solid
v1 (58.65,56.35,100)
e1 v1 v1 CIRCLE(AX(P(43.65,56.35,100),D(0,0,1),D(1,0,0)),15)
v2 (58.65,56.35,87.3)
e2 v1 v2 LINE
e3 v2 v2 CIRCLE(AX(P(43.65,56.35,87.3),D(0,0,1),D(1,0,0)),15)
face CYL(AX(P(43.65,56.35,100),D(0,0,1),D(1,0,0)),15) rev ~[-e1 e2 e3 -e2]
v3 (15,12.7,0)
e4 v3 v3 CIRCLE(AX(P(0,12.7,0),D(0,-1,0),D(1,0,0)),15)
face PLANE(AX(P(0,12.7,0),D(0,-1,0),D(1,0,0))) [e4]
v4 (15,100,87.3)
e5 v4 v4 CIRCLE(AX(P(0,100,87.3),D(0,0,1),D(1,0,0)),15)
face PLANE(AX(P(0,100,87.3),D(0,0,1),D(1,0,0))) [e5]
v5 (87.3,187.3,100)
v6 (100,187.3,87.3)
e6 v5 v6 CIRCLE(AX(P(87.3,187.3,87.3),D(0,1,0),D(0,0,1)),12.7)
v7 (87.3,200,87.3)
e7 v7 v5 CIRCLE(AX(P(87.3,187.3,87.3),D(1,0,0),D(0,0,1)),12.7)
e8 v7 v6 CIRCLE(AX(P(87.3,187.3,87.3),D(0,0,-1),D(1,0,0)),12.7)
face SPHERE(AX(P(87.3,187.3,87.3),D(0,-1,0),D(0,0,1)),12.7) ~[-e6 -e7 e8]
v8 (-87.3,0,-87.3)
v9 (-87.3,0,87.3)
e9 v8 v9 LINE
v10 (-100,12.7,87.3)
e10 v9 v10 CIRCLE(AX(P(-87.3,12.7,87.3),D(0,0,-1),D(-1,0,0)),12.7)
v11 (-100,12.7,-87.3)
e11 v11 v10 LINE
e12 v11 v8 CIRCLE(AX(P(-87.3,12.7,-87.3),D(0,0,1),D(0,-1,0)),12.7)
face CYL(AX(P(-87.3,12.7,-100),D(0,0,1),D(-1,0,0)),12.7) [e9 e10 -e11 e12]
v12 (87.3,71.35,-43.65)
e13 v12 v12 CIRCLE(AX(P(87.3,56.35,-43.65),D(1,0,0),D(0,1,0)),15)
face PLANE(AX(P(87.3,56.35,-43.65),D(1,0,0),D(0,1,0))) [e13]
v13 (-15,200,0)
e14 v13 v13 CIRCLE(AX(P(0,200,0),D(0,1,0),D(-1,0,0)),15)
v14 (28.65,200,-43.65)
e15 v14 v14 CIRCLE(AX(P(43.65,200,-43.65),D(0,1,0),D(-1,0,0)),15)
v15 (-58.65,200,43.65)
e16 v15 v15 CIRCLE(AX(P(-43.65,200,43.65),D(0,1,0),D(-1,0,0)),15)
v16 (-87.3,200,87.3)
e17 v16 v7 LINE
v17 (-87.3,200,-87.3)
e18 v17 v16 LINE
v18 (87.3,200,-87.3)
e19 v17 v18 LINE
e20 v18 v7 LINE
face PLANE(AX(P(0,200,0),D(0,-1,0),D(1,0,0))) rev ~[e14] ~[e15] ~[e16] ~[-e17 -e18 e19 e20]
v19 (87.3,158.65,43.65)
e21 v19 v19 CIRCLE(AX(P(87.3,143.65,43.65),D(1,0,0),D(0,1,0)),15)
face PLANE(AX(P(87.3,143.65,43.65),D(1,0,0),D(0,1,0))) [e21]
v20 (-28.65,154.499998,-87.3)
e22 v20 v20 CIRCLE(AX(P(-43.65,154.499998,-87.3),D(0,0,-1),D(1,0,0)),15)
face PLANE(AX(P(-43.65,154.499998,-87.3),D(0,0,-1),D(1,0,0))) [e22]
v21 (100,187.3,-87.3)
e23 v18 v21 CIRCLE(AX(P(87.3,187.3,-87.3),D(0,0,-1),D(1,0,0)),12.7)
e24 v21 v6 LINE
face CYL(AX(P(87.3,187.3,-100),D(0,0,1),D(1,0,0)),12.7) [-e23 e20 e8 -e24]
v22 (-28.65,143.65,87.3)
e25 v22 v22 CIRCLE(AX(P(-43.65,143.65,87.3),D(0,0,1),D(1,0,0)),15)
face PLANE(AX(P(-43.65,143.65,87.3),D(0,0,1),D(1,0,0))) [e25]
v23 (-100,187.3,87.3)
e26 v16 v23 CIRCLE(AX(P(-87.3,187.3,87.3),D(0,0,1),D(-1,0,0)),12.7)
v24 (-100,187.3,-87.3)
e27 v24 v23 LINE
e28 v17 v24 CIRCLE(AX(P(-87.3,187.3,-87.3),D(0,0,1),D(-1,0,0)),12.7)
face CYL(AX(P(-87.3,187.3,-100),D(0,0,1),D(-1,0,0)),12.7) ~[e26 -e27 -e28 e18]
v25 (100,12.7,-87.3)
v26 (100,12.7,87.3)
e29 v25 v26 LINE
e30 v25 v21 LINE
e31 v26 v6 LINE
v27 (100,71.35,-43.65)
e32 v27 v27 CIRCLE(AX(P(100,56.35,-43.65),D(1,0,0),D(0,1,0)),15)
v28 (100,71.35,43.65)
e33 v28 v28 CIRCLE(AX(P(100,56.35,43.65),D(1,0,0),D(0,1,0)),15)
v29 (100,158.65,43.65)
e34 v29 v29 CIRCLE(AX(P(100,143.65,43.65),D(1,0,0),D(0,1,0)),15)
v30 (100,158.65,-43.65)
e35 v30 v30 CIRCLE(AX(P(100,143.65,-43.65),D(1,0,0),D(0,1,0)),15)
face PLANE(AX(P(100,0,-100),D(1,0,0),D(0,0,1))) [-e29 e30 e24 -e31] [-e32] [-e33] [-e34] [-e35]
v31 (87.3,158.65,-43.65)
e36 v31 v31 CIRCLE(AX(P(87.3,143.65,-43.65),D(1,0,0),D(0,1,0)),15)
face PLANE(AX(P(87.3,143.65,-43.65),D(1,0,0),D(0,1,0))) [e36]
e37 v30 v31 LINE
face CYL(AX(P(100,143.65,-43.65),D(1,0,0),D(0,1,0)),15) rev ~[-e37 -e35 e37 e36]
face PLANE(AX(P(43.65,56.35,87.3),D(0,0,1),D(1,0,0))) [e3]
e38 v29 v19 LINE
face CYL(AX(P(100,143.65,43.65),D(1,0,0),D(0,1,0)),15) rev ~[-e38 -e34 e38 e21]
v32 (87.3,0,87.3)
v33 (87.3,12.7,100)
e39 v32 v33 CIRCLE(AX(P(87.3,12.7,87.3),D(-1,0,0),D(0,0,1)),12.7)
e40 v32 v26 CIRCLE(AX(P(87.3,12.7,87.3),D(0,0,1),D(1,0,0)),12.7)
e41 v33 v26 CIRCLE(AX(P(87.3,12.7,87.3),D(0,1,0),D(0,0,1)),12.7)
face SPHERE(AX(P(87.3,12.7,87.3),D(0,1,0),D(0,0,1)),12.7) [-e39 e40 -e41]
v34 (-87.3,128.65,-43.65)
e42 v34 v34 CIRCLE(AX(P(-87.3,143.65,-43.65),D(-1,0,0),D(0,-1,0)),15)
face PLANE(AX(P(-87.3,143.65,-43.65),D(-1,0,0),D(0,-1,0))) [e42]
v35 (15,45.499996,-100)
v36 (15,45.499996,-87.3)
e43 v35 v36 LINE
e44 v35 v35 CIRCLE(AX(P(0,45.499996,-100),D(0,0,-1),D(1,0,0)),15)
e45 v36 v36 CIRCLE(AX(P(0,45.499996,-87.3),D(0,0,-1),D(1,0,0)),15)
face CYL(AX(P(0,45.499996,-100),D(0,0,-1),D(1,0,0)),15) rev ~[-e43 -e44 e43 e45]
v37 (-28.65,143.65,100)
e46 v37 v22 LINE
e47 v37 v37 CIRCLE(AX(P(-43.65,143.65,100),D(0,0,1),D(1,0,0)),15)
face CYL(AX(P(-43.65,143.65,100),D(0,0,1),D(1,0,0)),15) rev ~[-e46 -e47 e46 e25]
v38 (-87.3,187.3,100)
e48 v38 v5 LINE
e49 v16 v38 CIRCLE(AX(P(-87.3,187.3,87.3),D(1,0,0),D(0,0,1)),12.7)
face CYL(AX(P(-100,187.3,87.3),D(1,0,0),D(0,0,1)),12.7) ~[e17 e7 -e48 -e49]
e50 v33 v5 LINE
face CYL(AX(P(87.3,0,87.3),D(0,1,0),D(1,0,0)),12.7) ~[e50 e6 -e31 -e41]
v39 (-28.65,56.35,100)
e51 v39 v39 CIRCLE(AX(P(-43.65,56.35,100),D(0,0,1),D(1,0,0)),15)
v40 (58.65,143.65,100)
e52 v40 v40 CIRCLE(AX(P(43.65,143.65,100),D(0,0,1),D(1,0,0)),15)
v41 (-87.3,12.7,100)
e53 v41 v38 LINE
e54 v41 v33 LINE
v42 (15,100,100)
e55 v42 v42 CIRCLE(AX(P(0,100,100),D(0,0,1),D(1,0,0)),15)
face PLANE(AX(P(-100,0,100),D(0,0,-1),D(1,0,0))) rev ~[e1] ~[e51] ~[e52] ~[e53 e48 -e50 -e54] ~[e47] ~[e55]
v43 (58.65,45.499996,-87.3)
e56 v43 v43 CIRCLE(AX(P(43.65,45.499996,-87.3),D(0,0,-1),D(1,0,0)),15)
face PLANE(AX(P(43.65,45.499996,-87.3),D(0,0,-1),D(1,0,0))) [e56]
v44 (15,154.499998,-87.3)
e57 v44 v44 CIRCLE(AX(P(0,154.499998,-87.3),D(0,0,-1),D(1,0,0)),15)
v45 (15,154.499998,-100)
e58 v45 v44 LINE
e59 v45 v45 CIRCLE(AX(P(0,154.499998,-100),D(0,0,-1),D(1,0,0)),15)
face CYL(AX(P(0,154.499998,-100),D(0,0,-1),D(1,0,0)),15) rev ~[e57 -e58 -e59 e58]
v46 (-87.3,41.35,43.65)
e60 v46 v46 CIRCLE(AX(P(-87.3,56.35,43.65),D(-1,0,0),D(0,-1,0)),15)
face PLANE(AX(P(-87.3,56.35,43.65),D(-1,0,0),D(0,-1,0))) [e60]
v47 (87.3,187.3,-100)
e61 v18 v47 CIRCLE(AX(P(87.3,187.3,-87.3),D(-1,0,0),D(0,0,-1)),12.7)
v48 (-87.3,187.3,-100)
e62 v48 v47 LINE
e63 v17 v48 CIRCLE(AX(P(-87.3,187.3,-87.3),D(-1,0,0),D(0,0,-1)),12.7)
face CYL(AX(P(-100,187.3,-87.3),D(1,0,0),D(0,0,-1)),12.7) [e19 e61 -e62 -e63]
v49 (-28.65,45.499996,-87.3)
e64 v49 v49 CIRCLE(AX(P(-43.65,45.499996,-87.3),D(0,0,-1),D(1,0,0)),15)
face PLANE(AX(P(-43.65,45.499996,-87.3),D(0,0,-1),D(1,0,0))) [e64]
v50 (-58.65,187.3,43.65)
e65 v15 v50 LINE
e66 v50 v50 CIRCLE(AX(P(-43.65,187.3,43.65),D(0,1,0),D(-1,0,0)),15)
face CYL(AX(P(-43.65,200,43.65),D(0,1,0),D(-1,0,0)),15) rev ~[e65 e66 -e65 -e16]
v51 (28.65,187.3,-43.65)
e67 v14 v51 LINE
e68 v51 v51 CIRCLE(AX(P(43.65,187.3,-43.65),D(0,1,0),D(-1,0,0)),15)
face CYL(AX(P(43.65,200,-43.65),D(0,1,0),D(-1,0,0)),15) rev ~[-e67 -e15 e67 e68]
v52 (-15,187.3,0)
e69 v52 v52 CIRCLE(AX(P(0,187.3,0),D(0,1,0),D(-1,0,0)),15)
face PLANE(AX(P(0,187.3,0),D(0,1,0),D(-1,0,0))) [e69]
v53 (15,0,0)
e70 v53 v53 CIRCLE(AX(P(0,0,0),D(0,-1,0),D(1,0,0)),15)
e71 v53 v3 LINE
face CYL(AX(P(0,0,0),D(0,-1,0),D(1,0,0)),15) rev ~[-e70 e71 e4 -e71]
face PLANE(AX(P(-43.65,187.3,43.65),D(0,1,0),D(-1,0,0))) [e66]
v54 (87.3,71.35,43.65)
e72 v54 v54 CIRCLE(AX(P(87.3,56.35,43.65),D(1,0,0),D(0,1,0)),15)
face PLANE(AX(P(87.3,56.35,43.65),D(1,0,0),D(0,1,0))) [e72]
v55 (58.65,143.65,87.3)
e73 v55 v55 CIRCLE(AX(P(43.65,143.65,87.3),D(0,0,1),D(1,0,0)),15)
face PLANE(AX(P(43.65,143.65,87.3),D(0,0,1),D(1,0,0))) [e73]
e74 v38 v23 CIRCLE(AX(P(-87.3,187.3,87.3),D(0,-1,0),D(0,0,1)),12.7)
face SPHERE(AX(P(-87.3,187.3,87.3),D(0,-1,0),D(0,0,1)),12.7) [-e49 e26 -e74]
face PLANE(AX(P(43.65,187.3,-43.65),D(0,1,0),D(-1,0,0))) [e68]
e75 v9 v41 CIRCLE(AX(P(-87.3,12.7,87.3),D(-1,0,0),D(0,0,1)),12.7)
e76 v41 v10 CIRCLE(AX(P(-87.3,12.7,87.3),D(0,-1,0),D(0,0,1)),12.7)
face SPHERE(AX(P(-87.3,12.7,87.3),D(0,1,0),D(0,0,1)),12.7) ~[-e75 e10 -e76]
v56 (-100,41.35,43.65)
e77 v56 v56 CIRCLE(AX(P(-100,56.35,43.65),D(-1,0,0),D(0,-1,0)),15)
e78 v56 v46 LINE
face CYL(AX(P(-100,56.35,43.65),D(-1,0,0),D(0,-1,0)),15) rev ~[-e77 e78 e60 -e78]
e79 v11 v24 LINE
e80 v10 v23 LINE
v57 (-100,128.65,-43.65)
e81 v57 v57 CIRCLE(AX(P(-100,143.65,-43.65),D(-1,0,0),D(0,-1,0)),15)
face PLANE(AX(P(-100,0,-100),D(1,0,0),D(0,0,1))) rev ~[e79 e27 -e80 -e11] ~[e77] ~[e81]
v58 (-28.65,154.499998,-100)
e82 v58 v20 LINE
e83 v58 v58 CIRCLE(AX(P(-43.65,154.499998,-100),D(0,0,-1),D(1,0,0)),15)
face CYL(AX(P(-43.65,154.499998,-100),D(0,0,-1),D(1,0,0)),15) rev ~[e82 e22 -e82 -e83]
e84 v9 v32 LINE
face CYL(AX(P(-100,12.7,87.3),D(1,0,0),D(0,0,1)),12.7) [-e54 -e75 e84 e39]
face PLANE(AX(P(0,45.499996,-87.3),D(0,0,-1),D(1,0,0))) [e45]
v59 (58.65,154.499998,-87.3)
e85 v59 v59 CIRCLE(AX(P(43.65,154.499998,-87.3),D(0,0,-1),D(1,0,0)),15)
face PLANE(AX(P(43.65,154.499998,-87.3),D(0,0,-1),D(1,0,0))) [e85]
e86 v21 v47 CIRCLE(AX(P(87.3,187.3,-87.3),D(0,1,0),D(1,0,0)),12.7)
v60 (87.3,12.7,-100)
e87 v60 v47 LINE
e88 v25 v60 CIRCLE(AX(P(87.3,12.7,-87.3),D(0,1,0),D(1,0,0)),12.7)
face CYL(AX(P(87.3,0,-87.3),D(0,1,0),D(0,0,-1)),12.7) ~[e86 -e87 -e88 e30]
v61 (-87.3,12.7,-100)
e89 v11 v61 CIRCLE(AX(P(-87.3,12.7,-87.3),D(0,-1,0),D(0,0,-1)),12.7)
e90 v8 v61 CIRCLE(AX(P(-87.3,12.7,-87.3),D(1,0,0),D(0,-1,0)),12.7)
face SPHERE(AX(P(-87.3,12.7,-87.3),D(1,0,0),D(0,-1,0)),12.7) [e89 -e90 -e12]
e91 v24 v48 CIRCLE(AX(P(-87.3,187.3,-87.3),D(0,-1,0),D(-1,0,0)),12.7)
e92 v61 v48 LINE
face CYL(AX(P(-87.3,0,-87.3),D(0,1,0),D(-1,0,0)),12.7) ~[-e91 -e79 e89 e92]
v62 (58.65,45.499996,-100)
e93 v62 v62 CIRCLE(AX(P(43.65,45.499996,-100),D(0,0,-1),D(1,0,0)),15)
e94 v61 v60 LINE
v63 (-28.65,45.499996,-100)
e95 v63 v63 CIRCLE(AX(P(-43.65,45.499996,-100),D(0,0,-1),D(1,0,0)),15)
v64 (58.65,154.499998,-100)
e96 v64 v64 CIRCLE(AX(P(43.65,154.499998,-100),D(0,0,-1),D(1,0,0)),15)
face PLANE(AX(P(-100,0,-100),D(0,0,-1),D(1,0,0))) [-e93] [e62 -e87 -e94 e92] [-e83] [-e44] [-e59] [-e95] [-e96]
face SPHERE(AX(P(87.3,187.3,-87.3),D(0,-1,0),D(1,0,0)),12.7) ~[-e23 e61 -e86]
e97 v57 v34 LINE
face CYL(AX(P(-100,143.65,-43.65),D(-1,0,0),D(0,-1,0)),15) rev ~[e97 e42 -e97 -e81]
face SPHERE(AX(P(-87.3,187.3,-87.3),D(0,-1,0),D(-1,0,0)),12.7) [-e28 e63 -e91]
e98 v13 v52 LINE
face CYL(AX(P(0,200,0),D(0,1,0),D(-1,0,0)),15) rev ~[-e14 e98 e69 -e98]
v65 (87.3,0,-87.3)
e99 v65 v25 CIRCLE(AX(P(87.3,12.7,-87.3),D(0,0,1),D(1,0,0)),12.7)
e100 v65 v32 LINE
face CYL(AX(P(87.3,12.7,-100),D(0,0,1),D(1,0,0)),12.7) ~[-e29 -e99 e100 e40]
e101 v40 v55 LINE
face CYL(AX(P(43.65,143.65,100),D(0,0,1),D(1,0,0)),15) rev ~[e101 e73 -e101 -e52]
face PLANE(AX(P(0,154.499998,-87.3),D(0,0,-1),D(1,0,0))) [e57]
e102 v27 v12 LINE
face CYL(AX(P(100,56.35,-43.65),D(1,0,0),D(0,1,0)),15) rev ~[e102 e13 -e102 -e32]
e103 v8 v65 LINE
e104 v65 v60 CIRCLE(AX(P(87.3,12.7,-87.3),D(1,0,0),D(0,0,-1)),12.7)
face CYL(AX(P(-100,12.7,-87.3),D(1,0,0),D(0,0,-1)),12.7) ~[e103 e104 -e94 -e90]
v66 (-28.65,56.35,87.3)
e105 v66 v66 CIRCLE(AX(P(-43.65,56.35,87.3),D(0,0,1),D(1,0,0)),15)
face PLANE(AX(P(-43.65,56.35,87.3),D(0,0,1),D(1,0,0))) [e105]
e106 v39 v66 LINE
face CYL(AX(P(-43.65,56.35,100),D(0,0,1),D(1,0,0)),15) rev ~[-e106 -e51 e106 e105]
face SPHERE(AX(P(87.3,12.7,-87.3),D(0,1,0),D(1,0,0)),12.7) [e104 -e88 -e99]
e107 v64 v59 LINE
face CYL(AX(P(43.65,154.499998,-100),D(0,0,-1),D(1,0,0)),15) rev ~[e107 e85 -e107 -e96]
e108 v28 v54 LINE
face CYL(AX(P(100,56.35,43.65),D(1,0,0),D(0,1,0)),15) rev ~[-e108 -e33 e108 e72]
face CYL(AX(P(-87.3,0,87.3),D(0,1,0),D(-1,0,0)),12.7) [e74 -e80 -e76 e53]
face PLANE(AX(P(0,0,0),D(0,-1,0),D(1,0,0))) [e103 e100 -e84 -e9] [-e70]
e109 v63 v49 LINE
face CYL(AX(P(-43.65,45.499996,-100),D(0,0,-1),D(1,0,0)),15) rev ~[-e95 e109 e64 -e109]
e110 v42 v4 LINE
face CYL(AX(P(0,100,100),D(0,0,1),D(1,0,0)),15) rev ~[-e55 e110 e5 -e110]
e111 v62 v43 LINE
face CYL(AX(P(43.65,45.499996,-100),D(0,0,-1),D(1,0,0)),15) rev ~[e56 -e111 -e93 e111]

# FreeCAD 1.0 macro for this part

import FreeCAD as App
import Part
import Sketcher
Q = App.Units.Quantity

doc = App.newDocument("Part")
body = doc.addObject("PartDesign::Body", "Body")

sketch1 = body.newObject("Sketcher::SketchObject", "Sketch")
sketch1.AttachmentSupport = (doc.getObject("XZ_Plane"), [""])
sketch1.MapMode = "FlatFace"
sketch1.addGeometry([
    Part.LineSegment(App.Vector(-100, 100, 0), App.Vector(-100, -100, 0)),
    Part.LineSegment(App.Vector(-100, -100, 0), App.Vector(100, -100, 0)),
    Part.LineSegment(App.Vector(100, -100, 0), App.Vector(100, 100, 0)),
    Part.LineSegment(App.Vector(100, 100, 0), App.Vector(-100, 100, 0)),
], False)
sketch1.addConstraint([
    Sketcher.Constraint("Coincident", 0, 2, 1, 1),
    Sketcher.Constraint("Coincident", 1, 2, 2, 1),
    Sketcher.Constraint("Coincident", 2, 2, 3, 1),
    Sketcher.Constraint("Coincident", 3, 2, 0, 1),
    Sketcher.Constraint("Vertical", 0),
    Sketcher.Constraint("Horizontal", 1),
    Sketcher.Constraint("Vertical", 2),
    Sketcher.Constraint("Horizontal", 3),
    Sketcher.Constraint("Symmetric", 0, 2, 2, 2, -1, 1),
    Sketcher.Constraint("Equal", 3, 0),
    Sketcher.Constraint("DistanceX", 1, 1, 1, 2, Q("200 mm")),
])
pad1 = body.newObject("PartDesign::Pad", "Pad")
pad1.Profile = sketch1
pad1.Length = 200
pad1.Reversed = True
doc.recompute()

fillet = body.newObject("PartDesign::Fillet", "Fillet")
fillet.Base = (pad1, ["Edge1"])
fillet.UseAllEdges = True
fillet.Radius = 12.7

sketch2 = body.newObject("Sketcher::SketchObject", "Sketch001")
sketch2.AttachmentSupport = (doc.getObject("XZ_Plane"), [""])
sketch2.MapMode = "FlatFace"
sketch2.addGeometry(Part.Circle(App.Vector(0, 0, 0), App.Vector(0, 0, 1), 15), False)
sketch2.addConstraint([
    Sketcher.Constraint("Coincident", 0, 3, -1, 1),
    Sketcher.Constraint("Diameter", 0, Q("30 mm")),
])
pocket1 = body.newObject("PartDesign::Pocket", "Pocket")
pocket1.Profile = sketch2
pocket1.Length = 12.7

sketch3 = body.newObject("Sketcher::SketchObject", "Sketch002")
sketch3.AttachmentSupport = (doc.getObject("YZ_Plane"), [""])
sketch3.MapMode = "FlatFace"
sketch3.AttachmentOffset = App.Placement(App.Vector(0, 0, 100), App.Rotation())
sketch3.addGeometry([
    Part.Circle(App.Vector(56, -44, 0), App.Vector(0, 0, 1), 15),
    Part.Circle(App.Vector(144, -44, 0), App.Vector(0, 0, 1), 15),
    Part.Circle(App.Vector(56, 44, 0), App.Vector(0, 0, 1), 15),
    Part.Circle(App.Vector(144, 44, 0), App.Vector(0, 0, 1), 15),
], False)
sketch3.addConstraint([
    Sketcher.Constraint("Equal", 0, 1),
    Sketcher.Constraint("Equal", 1, 2),
    Sketcher.Constraint("Equal", 2, 3),
    Sketcher.Constraint("Symmetric", 0, 3, 2, 3, -1),
    Sketcher.Constraint("Symmetric", 1, 3, 3, 3, -1),
    Sketcher.Constraint("Horizontal", 0, 3, 1, 3),
    Sketcher.Constraint("Diameter", 0, Q("30 mm")),
    Sketcher.Constraint("DistanceX", 0, 3, 1, 3, Q("87.3 mm")),
    Sketcher.Constraint("DistanceY", 0, 3, 2, 3, Q("87.3 mm")),
    Sketcher.Constraint("DistanceX", -1, 1, 0, 3, Q("56.35 mm")),
])
pocket2 = body.newObject("PartDesign::Pocket", "Pocket001")
pocket2.Profile = sketch3
pocket2.Length = 12.7

sketch4 = body.newObject("Sketcher::SketchObject", "Sketch003")
sketch4.AttachmentSupport = (doc.getObject("XY_Plane"), [""])
sketch4.MapMode = "FlatFace"
sketch4.AttachmentOffset = App.Placement(App.Vector(0, 0, -100), App.Rotation())
sketch4.addGeometry([
    Part.Circle(App.Vector(-44, 45, 0), App.Vector(0, 0, 1), 15),
    Part.Circle(App.Vector(0, 45, 0), App.Vector(0, 0, 1), 15),
    Part.Circle(App.Vector(44, 45, 0), App.Vector(0, 0, 1), 15),
    Part.Circle(App.Vector(-44, 154, 0), App.Vector(0, 0, 1), 15),
    Part.Circle(App.Vector(0, 154, 0), App.Vector(0, 0, 1), 15),
    Part.Circle(App.Vector(44, 154, 0), App.Vector(0, 0, 1), 15),
], False)
sketch4.addConstraint([
    Sketcher.Constraint("Equal", 0, 1),
    Sketcher.Constraint("Equal", 1, 2),
    Sketcher.Constraint("Equal", 2, 3),
    Sketcher.Constraint("Equal", 3, 4),
    Sketcher.Constraint("Equal", 4, 5),
    Sketcher.Constraint("Symmetric", 0, 3, 2, 3, -2),
    Sketcher.Constraint("Symmetric", 3, 3, 5, 3, -2),
    Sketcher.Constraint("PointOnObject", 1, 3, -2),
    Sketcher.Constraint("PointOnObject", 4, 3, -2),
    Sketcher.Constraint("Horizontal", 0, 3, 1, 3),
    Sketcher.Constraint("Horizontal", 3, 3, 4, 3),
    Sketcher.Constraint("Vertical", 0, 3, 3, 3),
    Sketcher.Constraint("Diameter", 0, Q("30 mm")),
    Sketcher.Constraint("DistanceY", 0, 3, 3, 3, Q("109.000002 mm")),
    Sketcher.Constraint("DistanceY", -1, 1, 3, 3, Q("154.499998 mm")),
    Sketcher.Constraint("DistanceX", 0, 3, 2, 3, Q("87.3 mm")),
])
pocket3 = body.newObject("PartDesign::Pocket", "Pocket002")
pocket3.Profile = sketch4
pocket3.Length = 12.7
pocket3.Reversed = True

sketch5 = body.newObject("Sketcher::SketchObject", "Sketch004")
sketch5.AttachmentSupport = (doc.getObject("XY_Plane"), [""])
sketch5.MapMode = "FlatFace"
sketch5.AttachmentOffset = App.Placement(App.Vector(0, 0, 100), App.Rotation())
sketch5.addGeometry([
    Part.Circle(App.Vector(-44, 144, 0), App.Vector(0, 0, 1), 15),
    Part.Circle(App.Vector(44, 144, 0), App.Vector(0, 0, 1), 15),
    Part.Circle(App.Vector(-44, 56, 0), App.Vector(0, 0, 1), 15),
    Part.Circle(App.Vector(44, 56, 0), App.Vector(0, 0, 1), 15),
    Part.Circle(App.Vector(0, 100, 0), App.Vector(0, 0, 1), 15),
], False)
sketch5.addConstraint([
    Sketcher.Constraint("Equal", 0, 1),
    Sketcher.Constraint("Equal", 1, 2),
    Sketcher.Constraint("Equal", 2, 3),
    Sketcher.Constraint("Equal", 3, 4),
    Sketcher.Constraint("Symmetric", 0, 3, 1, 3, -2),
    Sketcher.Constraint("Symmetric", 2, 3, 3, 3, -2),
    Sketcher.Constraint("PointOnObject", 4, 3, -2),
    Sketcher.Constraint("Vertical", 0, 3, 2, 3),
    Sketcher.Constraint("Diameter", 0, Q("30 mm")),
    Sketcher.Constraint("DistanceY", -1, 1, 4, 3, Q("100 mm")),
    Sketcher.Constraint("DistanceX", 0, 3, 1, 3, Q("87.3 mm")),
    Sketcher.Constraint("DistanceY", 2, 3, 0, 3, Q("87.3 mm")),
    Sketcher.Constraint("DistanceY", -1, 1, 0, 3, Q("143.65 mm")),
])
pocket4 = body.newObject("PartDesign::Pocket", "Pocket003")
pocket4.Profile = sketch5
pocket4.Length = 12.7

sketch6 = body.newObject("Sketcher::SketchObject", "Sketch005")
sketch6.AttachmentSupport = (doc.getObject("YZ_Plane"), [""])
sketch6.MapMode = "FlatFace"
sketch6.AttachmentOffset = App.Placement(App.Vector(0, 0, -100), App.Rotation())
sketch6.addGeometry([
    Part.Circle(App.Vector(144, -44, 0), App.Vector(0, 0, 1), 15),
    Part.Circle(App.Vector(56, 44, 0), App.Vector(0, 0, 1), 15),
], False)
sketch6.addConstraint([
    Sketcher.Constraint("Equal", 0, 1),
    Sketcher.Constraint("Diameter", 0, Q("30 mm")),
    Sketcher.Constraint("DistanceX", 1, 3, 0, 3, Q("87.3 mm")),
    Sketcher.Constraint("DistanceY", 0, 3, 1, 3, Q("87.3 mm")),
    Sketcher.Constraint("DistanceX", -1, 1, 0, 3, Q("143.65 mm")),
    Sketcher.Constraint("DistanceY", 0, 3, -1, 1, Q("43.65 mm")),
])
pocket5 = body.newObject("PartDesign::Pocket", "Pocket004")
pocket5.Profile = sketch6
pocket5.Length = 12.7
pocket5.Reversed = True

sketch7 = body.newObject("Sketcher::SketchObject", "Sketch006")
sketch7.AttachmentSupport = (doc.getObject("XZ_Plane"), [""])
sketch7.MapMode = "FlatFace"
sketch7.AttachmentOffset = App.Placement(App.Vector(0, 0, -200), App.Rotation())
sketch7.addGeometry([
    Part.Circle(App.Vector(44, -44, 0), App.Vector(0, 0, 1), 15),
    Part.Circle(App.Vector(0, 0, 0), App.Vector(0, 0, 1), 15),
    Part.Circle(App.Vector(-44, 44, 0), App.Vector(0, 0, 1), 15),
], False)
sketch7.addConstraint([
    Sketcher.Constraint("Coincident", 1, 3, -1, 1),
    Sketcher.Constraint("Equal", 0, 1),
    Sketcher.Constraint("Equal", 1, 2),
    Sketcher.Constraint("Symmetric", 0, 3, 2, 3, -1, 1),
    Sketcher.Constraint("Diameter", 0, Q("30 mm")),
    Sketcher.Constraint("DistanceX", 2, 3, 0, 3, Q("87.3 mm")),
    Sketcher.Constraint("DistanceY", 0, 3, 2, 3, Q("87.3 mm")),
])
pocket6 = body.newObject("PartDesign::Pocket", "Pocket005")
pocket6.Profile = sketch7
pocket6.Length = 12.7
pocket6.Reversed = True

doc.recompute()
